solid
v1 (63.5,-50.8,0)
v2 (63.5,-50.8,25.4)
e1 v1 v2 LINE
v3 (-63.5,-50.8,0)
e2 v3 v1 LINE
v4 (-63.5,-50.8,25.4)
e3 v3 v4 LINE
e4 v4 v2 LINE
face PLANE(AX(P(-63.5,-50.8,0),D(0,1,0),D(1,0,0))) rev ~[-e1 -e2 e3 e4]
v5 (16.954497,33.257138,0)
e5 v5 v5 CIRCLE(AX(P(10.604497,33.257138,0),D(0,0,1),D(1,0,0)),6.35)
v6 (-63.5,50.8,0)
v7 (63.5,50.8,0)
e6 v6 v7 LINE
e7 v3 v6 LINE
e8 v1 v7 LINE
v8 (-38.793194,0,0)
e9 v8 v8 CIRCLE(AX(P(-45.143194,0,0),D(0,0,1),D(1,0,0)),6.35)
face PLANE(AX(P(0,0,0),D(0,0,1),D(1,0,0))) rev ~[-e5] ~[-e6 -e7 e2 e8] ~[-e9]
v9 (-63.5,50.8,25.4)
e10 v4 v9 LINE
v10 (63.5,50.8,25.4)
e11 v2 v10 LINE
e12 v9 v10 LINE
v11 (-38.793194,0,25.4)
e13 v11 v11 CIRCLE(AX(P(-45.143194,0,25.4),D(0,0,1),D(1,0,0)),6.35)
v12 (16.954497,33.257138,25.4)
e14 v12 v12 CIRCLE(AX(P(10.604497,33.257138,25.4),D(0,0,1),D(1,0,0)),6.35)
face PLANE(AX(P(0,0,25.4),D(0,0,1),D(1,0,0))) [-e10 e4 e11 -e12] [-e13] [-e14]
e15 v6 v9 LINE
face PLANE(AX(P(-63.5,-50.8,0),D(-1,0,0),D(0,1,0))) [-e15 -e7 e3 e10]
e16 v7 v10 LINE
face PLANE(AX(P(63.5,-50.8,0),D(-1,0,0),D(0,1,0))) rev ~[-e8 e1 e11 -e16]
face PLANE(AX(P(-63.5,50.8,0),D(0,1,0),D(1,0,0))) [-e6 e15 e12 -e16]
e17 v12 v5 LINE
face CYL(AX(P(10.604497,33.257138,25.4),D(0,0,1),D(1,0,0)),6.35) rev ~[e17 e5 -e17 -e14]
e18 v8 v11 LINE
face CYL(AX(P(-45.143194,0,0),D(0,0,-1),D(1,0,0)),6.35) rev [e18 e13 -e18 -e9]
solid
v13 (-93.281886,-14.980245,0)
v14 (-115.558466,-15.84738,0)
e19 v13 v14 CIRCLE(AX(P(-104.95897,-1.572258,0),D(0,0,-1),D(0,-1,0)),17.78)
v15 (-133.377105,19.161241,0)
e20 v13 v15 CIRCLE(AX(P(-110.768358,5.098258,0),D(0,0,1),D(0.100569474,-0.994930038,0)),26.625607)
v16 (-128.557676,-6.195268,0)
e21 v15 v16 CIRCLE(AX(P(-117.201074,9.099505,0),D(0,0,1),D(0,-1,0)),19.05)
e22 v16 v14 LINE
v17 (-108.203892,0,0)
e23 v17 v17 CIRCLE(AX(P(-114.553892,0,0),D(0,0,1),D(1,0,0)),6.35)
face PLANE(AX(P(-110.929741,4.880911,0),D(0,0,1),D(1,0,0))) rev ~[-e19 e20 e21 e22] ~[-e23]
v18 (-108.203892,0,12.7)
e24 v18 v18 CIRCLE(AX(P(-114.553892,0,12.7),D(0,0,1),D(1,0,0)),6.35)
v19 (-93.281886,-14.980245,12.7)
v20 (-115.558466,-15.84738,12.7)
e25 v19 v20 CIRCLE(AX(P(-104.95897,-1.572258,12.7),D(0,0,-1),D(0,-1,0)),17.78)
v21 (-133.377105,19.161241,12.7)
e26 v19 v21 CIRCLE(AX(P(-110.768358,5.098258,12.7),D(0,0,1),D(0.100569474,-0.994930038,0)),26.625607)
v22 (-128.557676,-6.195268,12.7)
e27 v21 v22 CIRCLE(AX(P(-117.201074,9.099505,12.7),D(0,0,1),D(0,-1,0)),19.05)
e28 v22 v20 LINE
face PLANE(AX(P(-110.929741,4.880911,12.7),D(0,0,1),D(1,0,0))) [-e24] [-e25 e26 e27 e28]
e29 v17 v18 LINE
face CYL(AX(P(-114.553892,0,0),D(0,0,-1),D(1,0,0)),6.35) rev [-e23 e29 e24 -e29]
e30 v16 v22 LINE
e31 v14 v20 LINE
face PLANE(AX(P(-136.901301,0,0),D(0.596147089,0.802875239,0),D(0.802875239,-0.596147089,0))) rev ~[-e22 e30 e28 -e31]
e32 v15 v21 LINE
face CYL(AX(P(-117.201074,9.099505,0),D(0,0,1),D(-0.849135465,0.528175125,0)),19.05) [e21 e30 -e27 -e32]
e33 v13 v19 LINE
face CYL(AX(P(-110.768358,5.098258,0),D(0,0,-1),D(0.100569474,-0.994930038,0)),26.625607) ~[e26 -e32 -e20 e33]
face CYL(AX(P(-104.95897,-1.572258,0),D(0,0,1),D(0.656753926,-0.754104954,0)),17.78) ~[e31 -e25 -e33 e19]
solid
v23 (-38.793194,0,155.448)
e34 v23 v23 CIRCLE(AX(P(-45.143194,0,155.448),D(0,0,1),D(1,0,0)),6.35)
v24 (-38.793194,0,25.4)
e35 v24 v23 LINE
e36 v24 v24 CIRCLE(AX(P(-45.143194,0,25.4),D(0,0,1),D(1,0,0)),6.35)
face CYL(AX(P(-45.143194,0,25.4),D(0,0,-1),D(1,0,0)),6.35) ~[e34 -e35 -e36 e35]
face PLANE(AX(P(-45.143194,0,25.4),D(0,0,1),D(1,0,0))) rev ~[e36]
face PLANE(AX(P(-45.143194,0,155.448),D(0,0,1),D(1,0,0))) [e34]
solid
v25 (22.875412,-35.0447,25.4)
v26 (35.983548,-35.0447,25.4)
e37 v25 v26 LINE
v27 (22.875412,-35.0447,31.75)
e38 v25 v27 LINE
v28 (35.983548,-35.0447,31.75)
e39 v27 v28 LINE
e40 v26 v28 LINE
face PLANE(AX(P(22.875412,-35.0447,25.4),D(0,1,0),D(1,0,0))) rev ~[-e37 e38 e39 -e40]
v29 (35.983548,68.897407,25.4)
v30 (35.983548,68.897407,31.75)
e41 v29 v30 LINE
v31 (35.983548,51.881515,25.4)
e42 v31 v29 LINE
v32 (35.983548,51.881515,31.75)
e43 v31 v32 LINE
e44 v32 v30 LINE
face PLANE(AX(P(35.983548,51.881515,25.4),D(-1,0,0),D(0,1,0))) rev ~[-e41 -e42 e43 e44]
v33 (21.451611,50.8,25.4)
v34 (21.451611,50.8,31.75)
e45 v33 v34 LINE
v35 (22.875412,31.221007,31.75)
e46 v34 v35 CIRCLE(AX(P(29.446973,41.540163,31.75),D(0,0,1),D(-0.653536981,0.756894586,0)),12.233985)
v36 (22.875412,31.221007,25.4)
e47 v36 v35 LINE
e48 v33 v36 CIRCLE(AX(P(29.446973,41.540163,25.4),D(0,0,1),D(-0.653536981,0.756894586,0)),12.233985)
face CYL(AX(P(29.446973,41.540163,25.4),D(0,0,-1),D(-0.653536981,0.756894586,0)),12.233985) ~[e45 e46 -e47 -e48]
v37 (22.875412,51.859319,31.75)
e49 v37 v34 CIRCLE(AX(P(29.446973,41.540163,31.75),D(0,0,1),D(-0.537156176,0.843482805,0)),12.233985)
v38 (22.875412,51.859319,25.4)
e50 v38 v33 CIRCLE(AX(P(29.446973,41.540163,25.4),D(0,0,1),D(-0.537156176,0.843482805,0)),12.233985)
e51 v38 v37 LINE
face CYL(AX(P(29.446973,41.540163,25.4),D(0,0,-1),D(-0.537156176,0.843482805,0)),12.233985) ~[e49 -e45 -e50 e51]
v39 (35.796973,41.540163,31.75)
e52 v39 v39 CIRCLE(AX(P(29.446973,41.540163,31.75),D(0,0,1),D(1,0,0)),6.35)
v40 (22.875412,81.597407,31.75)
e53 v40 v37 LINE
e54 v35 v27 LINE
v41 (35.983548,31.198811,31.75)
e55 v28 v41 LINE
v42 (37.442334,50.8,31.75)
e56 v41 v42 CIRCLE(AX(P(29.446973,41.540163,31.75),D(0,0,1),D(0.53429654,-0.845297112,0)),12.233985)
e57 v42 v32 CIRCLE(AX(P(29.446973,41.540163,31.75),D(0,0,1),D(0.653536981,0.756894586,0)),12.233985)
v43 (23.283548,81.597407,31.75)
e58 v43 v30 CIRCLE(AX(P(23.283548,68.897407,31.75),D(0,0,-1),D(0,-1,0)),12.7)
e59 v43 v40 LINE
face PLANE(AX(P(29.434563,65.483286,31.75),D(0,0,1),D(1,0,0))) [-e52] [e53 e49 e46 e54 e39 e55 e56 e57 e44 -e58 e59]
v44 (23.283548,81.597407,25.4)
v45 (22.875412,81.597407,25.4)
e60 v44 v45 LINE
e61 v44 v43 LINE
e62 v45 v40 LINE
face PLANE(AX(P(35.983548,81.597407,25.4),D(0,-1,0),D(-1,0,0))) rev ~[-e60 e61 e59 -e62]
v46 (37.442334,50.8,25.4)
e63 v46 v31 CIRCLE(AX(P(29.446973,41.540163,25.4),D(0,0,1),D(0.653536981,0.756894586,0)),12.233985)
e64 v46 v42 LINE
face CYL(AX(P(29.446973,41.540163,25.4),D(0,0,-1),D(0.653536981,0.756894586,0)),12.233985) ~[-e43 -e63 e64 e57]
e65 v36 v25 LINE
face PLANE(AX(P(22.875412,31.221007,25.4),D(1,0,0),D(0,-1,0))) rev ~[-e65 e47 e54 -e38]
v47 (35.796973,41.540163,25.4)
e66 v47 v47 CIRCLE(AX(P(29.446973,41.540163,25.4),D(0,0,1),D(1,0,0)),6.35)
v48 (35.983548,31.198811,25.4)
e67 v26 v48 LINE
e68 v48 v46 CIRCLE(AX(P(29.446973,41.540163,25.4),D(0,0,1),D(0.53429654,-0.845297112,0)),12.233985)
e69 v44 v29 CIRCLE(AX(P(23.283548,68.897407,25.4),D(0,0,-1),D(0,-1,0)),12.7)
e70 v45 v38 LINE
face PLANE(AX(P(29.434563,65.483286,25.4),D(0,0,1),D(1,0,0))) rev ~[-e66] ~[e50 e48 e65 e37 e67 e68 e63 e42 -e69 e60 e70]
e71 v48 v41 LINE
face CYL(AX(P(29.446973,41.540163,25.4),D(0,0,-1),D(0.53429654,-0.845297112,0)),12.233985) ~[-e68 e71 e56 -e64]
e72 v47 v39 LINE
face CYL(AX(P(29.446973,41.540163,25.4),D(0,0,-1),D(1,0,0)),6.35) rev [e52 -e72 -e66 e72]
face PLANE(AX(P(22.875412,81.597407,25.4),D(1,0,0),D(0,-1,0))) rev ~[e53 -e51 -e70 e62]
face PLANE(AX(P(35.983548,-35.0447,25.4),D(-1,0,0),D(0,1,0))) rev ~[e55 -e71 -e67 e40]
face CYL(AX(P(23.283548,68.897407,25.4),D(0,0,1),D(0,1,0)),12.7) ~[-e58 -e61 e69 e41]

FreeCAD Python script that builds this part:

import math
import FreeCAD as App
import Part
import Sketcher
Q = App.Units.Quantity


def edges_at(feature, points):
    """Names of the edges that pass closest to the given points."""
    edges = feature.Shape.Edges
    near = lambda p: min(range(len(edges)), key=lambda i: edges[i].distToShape(Part.Vertex(*p))[0])
    return sorted({f"Edge{near(p) + 1}" for p in points})

doc = App.newDocument("Part")
body = doc.addObject("PartDesign::Body", "Body")

# Sketch on XY plane
sketch1 = body.newObject("Sketcher::SketchObject", "Sketch")
sketch1.AttachmentSupport = (doc.getObject("XY_Plane"), [""])
sketch1.MapMode = "FlatFace"
sketch1.addGeometry([
    Part.LineSegment(App.Vector(-64, 51, 0), App.Vector(-64, -51, 0)),  # 0
    Part.LineSegment(App.Vector(-64, -51, 0), App.Vector(64, -51, 0)),  # 1
    Part.LineSegment(App.Vector(64, -51, 0), App.Vector(64, 51, 0)),  # 2
    Part.LineSegment(App.Vector(64, 51, 0), App.Vector(-64, 51, 0)),  # 3
    Part.Circle(App.Vector(-45, 0, 0), App.Vector(0, 0, 1), 6),  # 4
], False)
sketch1.addConstraint([
    Sketcher.Constraint("Coincident", 0, 2, 1, 1),
    Sketcher.Constraint("Coincident", 1, 2, 2, 1),
    Sketcher.Constraint("Coincident", 2, 2, 3, 1),
    Sketcher.Constraint("Coincident", 3, 2, 0, 1),
    Sketcher.Constraint("Vertical", 0),
    Sketcher.Constraint("Horizontal", 1),
    Sketcher.Constraint("Vertical", 2),
    Sketcher.Constraint("Horizontal", 3),
    Sketcher.Constraint("Symmetric", 0, 2, 2, 2, -1, 1),
    Sketcher.Constraint("PointOnObject", 4, 3, -1),
    Sketcher.Constraint("Diameter", 4, Q("0.5 in")),
    Sketcher.Constraint("DistanceX", 1, 1, 1, 2, Q("5 in")),
    Sketcher.Constraint("DistanceY", 0, 2, 0, 1, Q("4 in")),
    Sketcher.Constraint("DistanceX", 4, 3, -1, 1, 45.143194),
])
pad1 = body.newObject("PartDesign::Pad", "Pad")
pad1.Profile = sketch1
pad1.Length = Q("1 in")

# Sketch on XY plane
sketch2 = body.newObject("Sketcher::SketchObject", "Sketch001")
sketch2.AttachmentSupport = (doc.getObject("XY_Plane"), [""])
sketch2.MapMode = "FlatFace"
sketch2.AttachmentOffset = App.Placement(App.Vector(0, 0, 1 * 25.4), App.Rotation())
sketch2.addGeometry(Part.Circle(App.Vector(11, 33, 0), App.Vector(0, 0, 1), 6), False)
sketch2.addConstraint([
    Sketcher.Constraint("Diameter", 0, Q("0.5 in")),
    Sketcher.Constraint("DistanceX", -1, 1, 0, 3, Q("0.4174999 in")),
    Sketcher.Constraint("DistanceY", -1, 1, 0, 3, 33.257138),
])
pocket1 = body.newObject("PartDesign::Pocket", "Pocket")
pocket1.Profile = sketch2
pocket1.Length = Q("5.43 in")
body2 = doc.addObject("PartDesign::Body", "Body001")

# Sketch on XY plane
sketch3 = body2.newObject("Sketcher::SketchObject", "Sketch002")
sketch3.AttachmentSupport = (doc.getObject("XY_Plane001"), [""])
sketch3.MapMode = "FlatFace"
sketch3.AttachmentOffset = App.Placement(App.Vector(0, 0, 1 * 25.4), App.Rotation())
sketch3.addGeometry(Part.Circle(App.Vector(-45, 0, 0), App.Vector(0, 0, 1), 6), False)
sketch3.addConstraint([
    Sketcher.Constraint("PointOnObject", 0, 3, -1),
    Sketcher.Constraint("Diameter", 0, Q("0.5 in")),
    Sketcher.Constraint("DistanceX", 0, 3, -1, 1, 45.143194),
])
pad2 = body2.newObject("PartDesign::Pad", "Pad001")
pad2.Profile = sketch3
pad2.Length = Q("5.12 in")
body3 = doc.addObject("PartDesign::Body", "Body002")

# Sketch on XY plane
sketch4 = body3.newObject("Sketcher::SketchObject", "Sketch003")
sketch4.AttachmentSupport = (doc.getObject("XY_Plane002"), [""])
sketch4.MapMode = "FlatFace"
sketch4.addGeometry([
    Part.ArcOfCircle(Part.Circle(App.Vector(-111, 5, 0), App.Vector(0, 0, 1), 27), math.radians(-84), math.radians(191)),
    Part.LineSegment(App.Vector(-137, 0, 0), App.Vector(-108, -21, 0)),
    Part.Circle(App.Vector(-115, 0, 0), App.Vector(0, 0, 1), 6),
], False)
sketch4.addConstraint([
    Sketcher.Constraint("Coincident", 0, 1, 1, 2),
    Sketcher.Constraint("Coincident", 1, 1, 0, 2),
    Sketcher.Constraint("PointOnObject", 2, 3, -1),
    Sketcher.Constraint("PointOnObject", 1, 1, -1),
    Sketcher.Constraint("Diameter", 2, Q("0.5 in")),
    Sketcher.Constraint("Radius", 0, 26.625607),
    Sketcher.Constraint("DistanceX", 1, 1, -1, 1, 136.901301),
    Sketcher.Constraint("DistanceX", 2, 3, -1, 1, 114.553892),
    Sketcher.Constraint("DistanceY", 0, 1, -1, 1, 21.392359),
    Sketcher.Constraint("Distance", 1, 35.884363),
])
pad3 = body3.newObject("PartDesign::Pad", "Pad002")
pad3.Profile = sketch4
pad3.Length = Q("0.5 in")
doc.recompute()

fillet = body3.newObject("PartDesign::Fillet", "Fillet")
fillet.Base = (pad3, edges_at(pad3, [(-136.901, 0, 6.35)]))
fillet.Radius = Q("0.75 in")
doc.recompute()

fillet2 = body3.newObject("PartDesign::Fillet", "Fillet001")
fillet2.Base = (fillet, edges_at(fillet, [(-108.091, -21.392, 6.35)]))
fillet2.Radius = Q("0.7 in")
body4 = doc.addObject("PartDesign::Body", "Body003")

# Sketch on XY plane
sketch5 = body4.newObject("Sketcher::SketchObject", "Sketch004")
sketch5.AttachmentSupport = (doc.getObject("XY_Plane003"), [""])
sketch5.MapMode = "FlatFace"
sketch5.AttachmentOffset = App.Placement(App.Vector(0, 0, 1 * 25.4), App.Rotation())
sketch5.addGeometry([
    Part.LineSegment(App.Vector(36, 81.6, 0), App.Vector(22.9, 81.6, 0)),  # 0
    Part.LineSegment(App.Vector(22.9, 81.6, 0), App.Vector(22.9, 51.9, 0)),  # 1
    Part.ArcOfCircle(Part.Circle(App.Vector(29.4, 41.5, 0), App.Vector(0, 0, 1), 12.2), math.radians(122.49), math.radians(130.81)),  # 2
    Part.ArcOfCircle(Part.Circle(App.Vector(29.4, 41.5, 0), App.Vector(0, 0, 1), 12.2), math.radians(131), math.radians(238)),  # 3
    Part.LineSegment(App.Vector(22.9, 31.2, 0), App.Vector(22.9, -35, 0)),  # 4
    Part.LineSegment(App.Vector(22.9, -35, 0), App.Vector(36, -35, 0)),  # 5
    Part.LineSegment(App.Vector(36, -35, 0), App.Vector(36, 31.2, 0)),  # 6
    Part.ArcOfCircle(Part.Circle(App.Vector(29.4, 41.5, 0), App.Vector(0, 0, 1), 12.2), math.radians(-58), math.radians(49)),  # 7
    Part.ArcOfCircle(Part.Circle(App.Vector(29.4, 41.5, 0), App.Vector(0, 0, 1), 12.2), math.radians(49.19), math.radians(57.7)),  # 8
    Part.LineSegment(App.Vector(36, 51.9, 0), App.Vector(36, 81.6, 0)),  # 9
    Part.Circle(App.Vector(29.4, 41.5, 0), App.Vector(0, 0, 1), 6.3),  # 10
], False)
sketch5.addConstraint([
    Sketcher.Constraint("Coincident", 0, 2, 1, 1),
    Sketcher.Constraint("Coincident", 1, 2, 2, 1),
    Sketcher.Constraint("Tangent", 2, 2, 3, 1),
    Sketcher.Constraint("Coincident", 3, 2, 4, 1),
    Sketcher.Constraint("Coincident", 4, 2, 5, 1),
    Sketcher.Constraint("Coincident", 5, 2, 6, 1),
    Sketcher.Constraint("Coincident", 6, 2, 7, 1),
    Sketcher.Constraint("Tangent", 7, 2, 8, 1),
    Sketcher.Constraint("Coincident", 8, 2, 9, 1),
    Sketcher.Constraint("Coincident", 9, 2, 0, 1),
    Sketcher.Constraint("Horizontal", 0),
    Sketcher.Constraint("Vertical", 1),
    Sketcher.Constraint("Vertical", 4),
    Sketcher.Constraint("Horizontal", 5),
    Sketcher.Constraint("Vertical", 6),
    Sketcher.Constraint("Vertical", 9),
    Sketcher.Constraint("Coincident", 7, 3, 2, 3),
    Sketcher.Constraint("Coincident", 10, 3, 2, 3),
    Sketcher.Constraint("Equal", 2, 3),
    Sketcher.Constraint("Equal", 3, 7),
    Sketcher.Constraint("Equal", 7, 8),
    Sketcher.Constraint("Horizontal", 2, 2, 7, 2),
    Sketcher.Constraint("Vertical", 1, 2, 3, 2),
    Sketcher.Constraint("Vertical", 6, 2, 8, 2),
    Sketcher.Constraint("Diameter", 10, Q("0.5 in")),
    Sketcher.Constraint("DistanceY", -1, 1, 2, 2, Q("2 in")),
    Sketcher.Constraint("Radius", 2, 12.233985),
    Sketcher.Constraint("DistanceY", 6, 1, 6, 2, 66.243511),
    Sketcher.Constraint("DistanceY", 9, 1, 9, 2, 29.715891),
    Sketcher.Constraint("DistanceY", 4, 2, -1, 1, 35.0447),
    Sketcher.Constraint("DistanceX", 2, 2, 1, 2, 1.423801),
    Sketcher.Constraint("DistanceX", 0, 2, 0, 1, 13.108136),
    Sketcher.Constraint("DistanceX", -1, 1, 0, 2, 22.875412),
])
pad4 = body4.newObject("PartDesign::Pad", "Pad003")
pad4.Profile = sketch5
pad4.Length = Q("0.25 in")
doc.recompute()

fillet3 = body4.newObject("PartDesign::Fillet", "Fillet002")
fillet3.Base = (pad4, edges_at(pad4, [(35.984, 81.597, 28.575)]))
fillet3.Radius = Q("0.5 in")

doc.recompute()
